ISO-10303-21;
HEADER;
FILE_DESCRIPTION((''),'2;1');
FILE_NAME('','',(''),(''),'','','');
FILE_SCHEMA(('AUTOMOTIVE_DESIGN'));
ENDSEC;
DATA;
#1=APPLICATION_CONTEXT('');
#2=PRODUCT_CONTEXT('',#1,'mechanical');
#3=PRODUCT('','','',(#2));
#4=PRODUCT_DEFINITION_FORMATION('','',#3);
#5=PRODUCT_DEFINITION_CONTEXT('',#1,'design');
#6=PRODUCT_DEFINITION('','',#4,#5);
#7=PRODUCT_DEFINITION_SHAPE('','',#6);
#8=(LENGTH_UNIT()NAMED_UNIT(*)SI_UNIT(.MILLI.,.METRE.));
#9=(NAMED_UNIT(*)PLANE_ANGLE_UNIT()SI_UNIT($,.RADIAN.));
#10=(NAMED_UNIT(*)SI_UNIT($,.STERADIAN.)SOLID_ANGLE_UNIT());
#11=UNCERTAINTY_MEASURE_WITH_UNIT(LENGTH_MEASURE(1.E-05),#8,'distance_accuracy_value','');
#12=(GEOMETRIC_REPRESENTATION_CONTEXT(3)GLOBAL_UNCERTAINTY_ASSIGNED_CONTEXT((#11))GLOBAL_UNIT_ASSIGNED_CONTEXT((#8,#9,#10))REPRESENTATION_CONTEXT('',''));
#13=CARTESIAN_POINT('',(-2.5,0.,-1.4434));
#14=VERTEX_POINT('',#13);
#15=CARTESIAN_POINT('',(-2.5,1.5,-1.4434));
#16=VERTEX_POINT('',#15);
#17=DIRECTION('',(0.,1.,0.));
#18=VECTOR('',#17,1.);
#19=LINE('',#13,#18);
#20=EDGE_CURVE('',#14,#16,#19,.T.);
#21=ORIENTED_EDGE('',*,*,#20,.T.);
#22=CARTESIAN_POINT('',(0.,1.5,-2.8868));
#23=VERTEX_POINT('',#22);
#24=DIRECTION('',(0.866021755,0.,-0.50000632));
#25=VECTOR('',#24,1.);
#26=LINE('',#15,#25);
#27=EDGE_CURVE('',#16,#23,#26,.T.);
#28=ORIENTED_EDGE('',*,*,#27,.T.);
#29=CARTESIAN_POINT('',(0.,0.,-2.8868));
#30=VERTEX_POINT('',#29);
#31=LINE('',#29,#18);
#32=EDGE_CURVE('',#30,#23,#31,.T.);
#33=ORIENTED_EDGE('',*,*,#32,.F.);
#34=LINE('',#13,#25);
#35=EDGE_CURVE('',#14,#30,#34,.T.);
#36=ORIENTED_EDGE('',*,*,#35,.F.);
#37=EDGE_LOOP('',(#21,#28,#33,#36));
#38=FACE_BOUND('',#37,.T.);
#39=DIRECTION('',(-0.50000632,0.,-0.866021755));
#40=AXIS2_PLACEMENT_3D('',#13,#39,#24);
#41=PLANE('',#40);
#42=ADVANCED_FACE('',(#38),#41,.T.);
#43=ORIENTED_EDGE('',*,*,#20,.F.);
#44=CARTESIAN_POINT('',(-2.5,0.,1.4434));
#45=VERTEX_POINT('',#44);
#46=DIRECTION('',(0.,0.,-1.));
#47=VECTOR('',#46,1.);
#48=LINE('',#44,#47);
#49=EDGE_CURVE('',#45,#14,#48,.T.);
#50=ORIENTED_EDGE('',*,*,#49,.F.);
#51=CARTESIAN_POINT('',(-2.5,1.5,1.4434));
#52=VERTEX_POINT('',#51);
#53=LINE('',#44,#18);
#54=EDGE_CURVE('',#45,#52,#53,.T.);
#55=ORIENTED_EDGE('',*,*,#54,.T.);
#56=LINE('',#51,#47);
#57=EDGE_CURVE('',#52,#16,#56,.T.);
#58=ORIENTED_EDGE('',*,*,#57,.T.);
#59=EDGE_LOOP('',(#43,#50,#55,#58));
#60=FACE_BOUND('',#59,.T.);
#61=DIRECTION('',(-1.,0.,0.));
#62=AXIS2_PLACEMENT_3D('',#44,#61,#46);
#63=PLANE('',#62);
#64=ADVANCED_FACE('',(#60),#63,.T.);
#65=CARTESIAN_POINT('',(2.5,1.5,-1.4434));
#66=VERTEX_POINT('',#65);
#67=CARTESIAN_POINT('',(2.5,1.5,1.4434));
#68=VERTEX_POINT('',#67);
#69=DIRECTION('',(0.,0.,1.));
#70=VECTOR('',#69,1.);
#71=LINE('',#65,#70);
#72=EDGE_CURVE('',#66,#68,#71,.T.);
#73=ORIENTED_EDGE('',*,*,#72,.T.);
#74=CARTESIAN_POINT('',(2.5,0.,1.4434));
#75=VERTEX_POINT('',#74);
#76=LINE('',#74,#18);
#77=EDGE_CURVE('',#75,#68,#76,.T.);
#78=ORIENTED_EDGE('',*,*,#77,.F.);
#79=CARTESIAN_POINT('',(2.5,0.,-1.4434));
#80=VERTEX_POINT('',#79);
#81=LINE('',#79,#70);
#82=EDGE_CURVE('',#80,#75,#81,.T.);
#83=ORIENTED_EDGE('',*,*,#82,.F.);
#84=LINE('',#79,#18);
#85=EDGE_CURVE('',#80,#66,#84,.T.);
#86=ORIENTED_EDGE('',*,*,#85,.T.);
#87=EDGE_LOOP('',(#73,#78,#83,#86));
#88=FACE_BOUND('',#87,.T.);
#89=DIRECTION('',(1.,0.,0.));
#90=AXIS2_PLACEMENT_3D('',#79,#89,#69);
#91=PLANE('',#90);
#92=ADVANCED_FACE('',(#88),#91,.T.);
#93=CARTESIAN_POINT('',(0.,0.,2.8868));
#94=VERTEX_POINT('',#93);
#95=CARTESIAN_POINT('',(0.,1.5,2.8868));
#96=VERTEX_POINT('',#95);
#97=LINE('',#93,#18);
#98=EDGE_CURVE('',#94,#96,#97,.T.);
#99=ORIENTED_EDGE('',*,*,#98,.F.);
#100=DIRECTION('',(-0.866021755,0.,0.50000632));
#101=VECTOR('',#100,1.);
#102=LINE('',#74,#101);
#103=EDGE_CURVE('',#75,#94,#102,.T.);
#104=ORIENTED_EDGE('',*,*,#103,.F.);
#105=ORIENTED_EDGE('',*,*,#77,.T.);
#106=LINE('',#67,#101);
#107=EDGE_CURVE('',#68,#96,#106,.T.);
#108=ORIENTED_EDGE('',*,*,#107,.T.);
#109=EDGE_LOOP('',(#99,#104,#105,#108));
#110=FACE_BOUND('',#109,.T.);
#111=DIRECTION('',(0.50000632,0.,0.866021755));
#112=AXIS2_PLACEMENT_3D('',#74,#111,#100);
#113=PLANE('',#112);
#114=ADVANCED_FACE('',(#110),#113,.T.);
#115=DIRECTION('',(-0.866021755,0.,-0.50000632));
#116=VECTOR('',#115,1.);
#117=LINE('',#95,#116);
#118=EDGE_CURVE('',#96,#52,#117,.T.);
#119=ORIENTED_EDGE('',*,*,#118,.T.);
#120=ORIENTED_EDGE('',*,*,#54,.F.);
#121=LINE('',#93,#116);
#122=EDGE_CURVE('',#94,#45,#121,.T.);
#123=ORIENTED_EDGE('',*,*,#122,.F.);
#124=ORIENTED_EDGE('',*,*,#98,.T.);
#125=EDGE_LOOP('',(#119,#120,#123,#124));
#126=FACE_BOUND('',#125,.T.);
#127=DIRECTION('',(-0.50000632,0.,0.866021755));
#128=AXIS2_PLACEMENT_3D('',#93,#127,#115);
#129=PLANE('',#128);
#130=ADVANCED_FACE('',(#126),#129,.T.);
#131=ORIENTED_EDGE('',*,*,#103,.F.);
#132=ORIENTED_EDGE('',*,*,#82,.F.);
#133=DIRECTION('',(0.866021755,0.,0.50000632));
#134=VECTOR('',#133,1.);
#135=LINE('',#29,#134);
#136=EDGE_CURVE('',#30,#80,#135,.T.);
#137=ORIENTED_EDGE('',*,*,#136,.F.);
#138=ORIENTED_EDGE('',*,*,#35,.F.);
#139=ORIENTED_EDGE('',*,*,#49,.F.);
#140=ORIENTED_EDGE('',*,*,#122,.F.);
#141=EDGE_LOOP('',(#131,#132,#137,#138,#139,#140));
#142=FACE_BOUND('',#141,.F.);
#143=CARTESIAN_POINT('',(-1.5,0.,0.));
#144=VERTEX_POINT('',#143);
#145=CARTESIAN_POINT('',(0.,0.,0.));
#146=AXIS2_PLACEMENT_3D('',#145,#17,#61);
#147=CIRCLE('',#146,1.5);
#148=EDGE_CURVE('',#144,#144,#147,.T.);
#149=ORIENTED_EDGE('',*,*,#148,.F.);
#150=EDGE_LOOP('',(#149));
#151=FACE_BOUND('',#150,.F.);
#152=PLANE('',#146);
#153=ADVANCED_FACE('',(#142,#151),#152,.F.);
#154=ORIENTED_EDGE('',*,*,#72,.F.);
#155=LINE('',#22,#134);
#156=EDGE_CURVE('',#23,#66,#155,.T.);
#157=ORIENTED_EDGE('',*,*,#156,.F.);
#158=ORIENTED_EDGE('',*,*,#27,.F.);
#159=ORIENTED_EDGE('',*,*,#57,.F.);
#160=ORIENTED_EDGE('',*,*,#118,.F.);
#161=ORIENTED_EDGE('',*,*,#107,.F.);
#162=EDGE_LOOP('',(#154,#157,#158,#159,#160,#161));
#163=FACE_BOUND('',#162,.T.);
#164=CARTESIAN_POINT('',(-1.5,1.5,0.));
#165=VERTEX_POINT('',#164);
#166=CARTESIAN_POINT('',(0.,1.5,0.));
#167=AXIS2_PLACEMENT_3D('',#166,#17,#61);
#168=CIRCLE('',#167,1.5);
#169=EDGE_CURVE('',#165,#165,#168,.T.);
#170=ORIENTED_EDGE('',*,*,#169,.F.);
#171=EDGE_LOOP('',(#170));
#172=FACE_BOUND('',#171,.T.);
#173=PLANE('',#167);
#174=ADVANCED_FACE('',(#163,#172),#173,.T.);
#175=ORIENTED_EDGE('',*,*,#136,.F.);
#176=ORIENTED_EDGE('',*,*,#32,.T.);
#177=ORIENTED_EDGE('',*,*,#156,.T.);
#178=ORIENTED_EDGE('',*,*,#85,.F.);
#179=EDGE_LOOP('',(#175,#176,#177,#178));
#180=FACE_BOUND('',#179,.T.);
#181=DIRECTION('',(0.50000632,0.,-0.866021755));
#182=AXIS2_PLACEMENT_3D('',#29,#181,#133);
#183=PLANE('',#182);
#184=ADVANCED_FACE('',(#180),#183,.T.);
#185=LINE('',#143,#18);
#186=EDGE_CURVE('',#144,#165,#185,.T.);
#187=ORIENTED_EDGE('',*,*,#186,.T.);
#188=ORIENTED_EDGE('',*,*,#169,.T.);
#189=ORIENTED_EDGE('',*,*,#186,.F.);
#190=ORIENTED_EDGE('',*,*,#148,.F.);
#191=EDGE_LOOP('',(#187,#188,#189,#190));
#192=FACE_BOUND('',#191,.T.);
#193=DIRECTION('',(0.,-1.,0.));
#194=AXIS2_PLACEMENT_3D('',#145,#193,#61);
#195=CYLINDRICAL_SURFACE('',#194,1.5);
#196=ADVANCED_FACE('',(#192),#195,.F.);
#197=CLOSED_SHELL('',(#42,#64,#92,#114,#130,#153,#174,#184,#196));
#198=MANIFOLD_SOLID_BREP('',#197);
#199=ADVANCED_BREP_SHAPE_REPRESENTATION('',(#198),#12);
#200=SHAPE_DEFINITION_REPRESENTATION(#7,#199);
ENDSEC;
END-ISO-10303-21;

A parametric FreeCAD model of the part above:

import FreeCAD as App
import Part
import Sketcher

V = App.Vector
Q = App.Units.Quantity

doc = App.newDocument("Part")
body = doc.addObject("PartDesign::Body", "Body")

# Sketch on XZ plane
sketch1 = body.newObject("Sketcher::SketchObject", "Sketch")
sketch1.AttachmentSupport = (doc.getObject("XZ_Plane"), [""])
sketch1.MapMode = "FlatFace"
sketch1.addGeometry([
    Part.LineSegment(V(2.5, -1.4434, 0), V(0, -2.8868, 0)),  # 0
    Part.LineSegment(V(0, -2.8868, 0), V(-2.5, -1.4434, 0)),  # 1
    Part.LineSegment(V(-2.5, -1.4434, 0), V(-2.5, 1.4434, 0)),  # 2
    Part.LineSegment(V(-2.5, 1.4434, 0), V(0, 2.8868, 0)),  # 3
    Part.LineSegment(V(0, 2.8868, 0), V(2.5, 1.4434, 0)),  # 4
    Part.LineSegment(V(2.5, 1.4434, 0), V(2.5, -1.4434, 0)),  # 5
    Part.Circle(V(0, 0, 0), V(0, 0, 1), 1.5),  # 6
], False)
sketch1.addConstraint([
    Sketcher.Constraint("Coincident", 0, 2, 1, 1),
    Sketcher.Constraint("Coincident", 1, 2, 2, 1),
    Sketcher.Constraint("Coincident", 2, 2, 3, 1),
    Sketcher.Constraint("Coincident", 3, 2, 4, 1),
    Sketcher.Constraint("Coincident", 4, 2, 5, 1),
    Sketcher.Constraint("Coincident", 5, 2, 0, 1),
    Sketcher.Constraint("Vertical", 2),
    Sketcher.Constraint("Vertical", 5),
    Sketcher.Constraint("Coincident", 6, 3, -1, 1),
    Sketcher.Constraint("Symmetric", 0, 2, 3, 2, -1, 1),
    Sketcher.Constraint("Symmetric", 1, 2, 4, 2, -1, 1),
    Sketcher.Constraint("PointOnObject", 0, 2, -2),
    Sketcher.Constraint("Parallel", 0, 3),
    Sketcher.Constraint("Horizontal", 2, 2, 4, 2),
    Sketcher.Constraint("Diameter", 6, 3.0),
    Sketcher.Constraint("DistanceX", 2, 2, 4, 2, 5.0),
    Sketcher.Constraint("Angle", 0, Q("-149.9996 deg")),
    Sketcher.Constraint("DistanceY", 2, 1, 2, 2, 2.8868),
])
pad1 = body.newObject("PartDesign::Pad", "Pad")
pad1.Profile = sketch1
pad1.Length = 1.5
pad1.Reversed = True

doc.recompute()
